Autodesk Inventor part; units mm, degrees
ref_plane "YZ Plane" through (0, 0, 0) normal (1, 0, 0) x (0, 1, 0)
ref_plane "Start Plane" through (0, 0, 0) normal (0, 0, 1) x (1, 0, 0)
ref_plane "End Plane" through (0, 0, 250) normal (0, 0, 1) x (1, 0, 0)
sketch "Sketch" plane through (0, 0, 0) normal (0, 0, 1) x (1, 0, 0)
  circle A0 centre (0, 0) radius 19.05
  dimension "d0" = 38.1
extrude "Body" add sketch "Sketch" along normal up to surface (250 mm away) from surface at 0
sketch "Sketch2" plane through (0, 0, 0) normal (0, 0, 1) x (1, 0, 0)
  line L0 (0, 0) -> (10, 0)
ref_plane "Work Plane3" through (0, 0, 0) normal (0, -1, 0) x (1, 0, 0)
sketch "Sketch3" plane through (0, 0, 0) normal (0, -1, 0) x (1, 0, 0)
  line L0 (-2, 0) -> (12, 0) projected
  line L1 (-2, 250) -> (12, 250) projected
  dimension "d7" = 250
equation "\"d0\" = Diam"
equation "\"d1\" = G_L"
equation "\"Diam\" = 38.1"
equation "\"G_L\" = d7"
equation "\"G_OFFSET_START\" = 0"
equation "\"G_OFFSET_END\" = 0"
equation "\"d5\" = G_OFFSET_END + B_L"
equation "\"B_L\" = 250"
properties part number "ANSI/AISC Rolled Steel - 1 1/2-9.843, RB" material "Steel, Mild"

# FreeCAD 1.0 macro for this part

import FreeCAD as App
import Part
import Sketcher
Q = App.Units.Quantity

doc = App.newDocument("Part")
params = doc.addObject("Spreadsheet::Sheet", "Params")
for row, (alias, value) in enumerate([
    ("sketch1_diameter", "38.1 mm"),
    ("pad1_length", "250 mm"),
], start=1):
    params.set(f"A{row}", alias)
    params.set(f"B{row}", "=" + value)
    params.setAlias(f"B{row}", alias)

body = doc.addObject("PartDesign::Body", "Body")

sketch1 = body.newObject("Sketcher::SketchObject", "Sketch")
sketch1.AttachmentSupport = (doc.getObject("XY_Plane"), [""])
sketch1.MapMode = "FlatFace"
sketch1.addGeometry(Part.Circle(App.Vector(0, 0, 0), App.Vector(0, 0, 1), 19), False)
sketch1.addConstraint([
    Sketcher.Constraint("Coincident", 0, 3, -1, 1),
    Sketcher.Constraint("Diameter", 0, Q("38.1 mm")),
])
sketch1.setExpression("Constraints[1]", "Params.sketch1_diameter")
pad1 = body.newObject("PartDesign::Pad", "Pad")
pad1.Profile = sketch1
pad1.setExpression("Length", "Params.pad1_length")

doc.recompute()
